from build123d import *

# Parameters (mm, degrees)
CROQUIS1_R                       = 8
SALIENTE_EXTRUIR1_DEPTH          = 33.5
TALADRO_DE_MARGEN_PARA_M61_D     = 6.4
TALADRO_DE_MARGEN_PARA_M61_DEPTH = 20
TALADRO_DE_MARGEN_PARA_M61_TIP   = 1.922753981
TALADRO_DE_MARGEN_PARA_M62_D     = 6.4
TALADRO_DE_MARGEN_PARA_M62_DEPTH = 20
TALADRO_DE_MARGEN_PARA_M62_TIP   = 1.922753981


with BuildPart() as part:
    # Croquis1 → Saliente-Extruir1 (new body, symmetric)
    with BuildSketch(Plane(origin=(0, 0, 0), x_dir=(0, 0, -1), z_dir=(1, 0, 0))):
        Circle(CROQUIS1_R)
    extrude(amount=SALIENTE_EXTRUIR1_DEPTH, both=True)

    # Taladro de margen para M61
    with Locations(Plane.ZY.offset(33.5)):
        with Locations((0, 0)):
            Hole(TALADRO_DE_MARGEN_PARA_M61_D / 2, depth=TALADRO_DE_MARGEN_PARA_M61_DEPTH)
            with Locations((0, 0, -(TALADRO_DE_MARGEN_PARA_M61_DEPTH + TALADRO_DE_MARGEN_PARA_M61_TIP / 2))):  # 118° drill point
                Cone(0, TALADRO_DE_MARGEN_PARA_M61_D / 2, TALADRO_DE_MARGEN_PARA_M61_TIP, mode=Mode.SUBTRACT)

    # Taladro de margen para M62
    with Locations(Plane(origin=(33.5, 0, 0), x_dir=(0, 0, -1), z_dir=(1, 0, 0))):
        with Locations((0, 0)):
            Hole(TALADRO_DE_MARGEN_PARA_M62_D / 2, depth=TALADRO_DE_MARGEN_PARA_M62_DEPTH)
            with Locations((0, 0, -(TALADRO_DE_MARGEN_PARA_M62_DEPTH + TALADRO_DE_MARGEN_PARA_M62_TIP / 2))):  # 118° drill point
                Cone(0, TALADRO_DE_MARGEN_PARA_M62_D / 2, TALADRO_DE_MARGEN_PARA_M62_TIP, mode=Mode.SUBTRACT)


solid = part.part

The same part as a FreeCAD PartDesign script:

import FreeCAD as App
import Part
import Sketcher

V = App.Vector
Q = App.Units.Quantity

doc = App.newDocument("Part")
body = doc.addObject("PartDesign::Body", "Body")

# Sketch on YZ plane
sketch1 = body.newObject("Sketcher::SketchObject", "Sketch")
sketch1.AttachmentSupport = (doc.getObject("YZ_Plane"), [""])
sketch1.MapMode = "FlatFace"
sketch1.addGeometry(Part.Circle(V(0, 0, 0), V(0, 0, 1), 8), False)
sketch1.addConstraint(Sketcher.Constraint("Coincident", 0, 3, -1, 1))
sketch1.addConstraint(Sketcher.Constraint("Diameter", 0, Q("16 mm")))
pad1 = body.newObject("PartDesign::Pad", "Pad")
pad1.Profile = sketch1
pad1.Length = 67
pad1.Midplane = True

# Sketch on YZ plane
sketch2 = body.newObject("Sketcher::SketchObject", "Sketch001")
sketch2.AttachmentSupport = (doc.getObject("YZ_Plane"), [""])
sketch2.MapMode = "FlatFace"
sketch2.AttachmentOffset = App.Placement(V(0, 0, -33.5), App.Rotation())
sketch2.addGeometry(Part.Circle(V(0, 0, 0), V(0, 0, 1), 3.2), False)
sketch2.addConstraint(Sketcher.Constraint("Coincident", 0, 3, -1, 1))
sketch2.addConstraint(Sketcher.Constraint("Diameter", 0, Q("6.4 mm")))
doc.recompute()
hole = body.newObject("PartDesign::Hole", "Hole")
hole.Profile = sketch2
hole.ThreadType = "None"
hole.Diameter = 6.4
hole.DepthType = "Dimension"
hole.Depth = 20
hole.DrillPoint = "Angled"
hole.DrillPointAngle = 118
hole.Reversed = True

# Sketch on YZ plane
sketch3 = body.newObject("Sketcher::SketchObject", "Sketch002")
sketch3.AttachmentSupport = (doc.getObject("YZ_Plane"), [""])
sketch3.MapMode = "FlatFace"
sketch3.AttachmentOffset = App.Placement(V(0, 0, 33.5), App.Rotation())
sketch3.addGeometry(Part.Circle(V(0, 0, 0), V(0, 0, 1), 3.2), False)
sketch3.addConstraint(Sketcher.Constraint("Coincident", 0, 3, -1, 1))
sketch3.addConstraint(Sketcher.Constraint("Diameter", 0, Q("6.4 mm")))
doc.recompute()
hole2 = body.newObject("PartDesign::Hole", "Hole001")
hole2.Profile = sketch3
hole2.ThreadType = "None"
hole2.Diameter = 6.4
hole2.DepthType = "Dimension"
hole2.Depth = 20
hole2.DrillPoint = "Angled"
hole2.DrillPointAngle = 118

doc.recompute()
